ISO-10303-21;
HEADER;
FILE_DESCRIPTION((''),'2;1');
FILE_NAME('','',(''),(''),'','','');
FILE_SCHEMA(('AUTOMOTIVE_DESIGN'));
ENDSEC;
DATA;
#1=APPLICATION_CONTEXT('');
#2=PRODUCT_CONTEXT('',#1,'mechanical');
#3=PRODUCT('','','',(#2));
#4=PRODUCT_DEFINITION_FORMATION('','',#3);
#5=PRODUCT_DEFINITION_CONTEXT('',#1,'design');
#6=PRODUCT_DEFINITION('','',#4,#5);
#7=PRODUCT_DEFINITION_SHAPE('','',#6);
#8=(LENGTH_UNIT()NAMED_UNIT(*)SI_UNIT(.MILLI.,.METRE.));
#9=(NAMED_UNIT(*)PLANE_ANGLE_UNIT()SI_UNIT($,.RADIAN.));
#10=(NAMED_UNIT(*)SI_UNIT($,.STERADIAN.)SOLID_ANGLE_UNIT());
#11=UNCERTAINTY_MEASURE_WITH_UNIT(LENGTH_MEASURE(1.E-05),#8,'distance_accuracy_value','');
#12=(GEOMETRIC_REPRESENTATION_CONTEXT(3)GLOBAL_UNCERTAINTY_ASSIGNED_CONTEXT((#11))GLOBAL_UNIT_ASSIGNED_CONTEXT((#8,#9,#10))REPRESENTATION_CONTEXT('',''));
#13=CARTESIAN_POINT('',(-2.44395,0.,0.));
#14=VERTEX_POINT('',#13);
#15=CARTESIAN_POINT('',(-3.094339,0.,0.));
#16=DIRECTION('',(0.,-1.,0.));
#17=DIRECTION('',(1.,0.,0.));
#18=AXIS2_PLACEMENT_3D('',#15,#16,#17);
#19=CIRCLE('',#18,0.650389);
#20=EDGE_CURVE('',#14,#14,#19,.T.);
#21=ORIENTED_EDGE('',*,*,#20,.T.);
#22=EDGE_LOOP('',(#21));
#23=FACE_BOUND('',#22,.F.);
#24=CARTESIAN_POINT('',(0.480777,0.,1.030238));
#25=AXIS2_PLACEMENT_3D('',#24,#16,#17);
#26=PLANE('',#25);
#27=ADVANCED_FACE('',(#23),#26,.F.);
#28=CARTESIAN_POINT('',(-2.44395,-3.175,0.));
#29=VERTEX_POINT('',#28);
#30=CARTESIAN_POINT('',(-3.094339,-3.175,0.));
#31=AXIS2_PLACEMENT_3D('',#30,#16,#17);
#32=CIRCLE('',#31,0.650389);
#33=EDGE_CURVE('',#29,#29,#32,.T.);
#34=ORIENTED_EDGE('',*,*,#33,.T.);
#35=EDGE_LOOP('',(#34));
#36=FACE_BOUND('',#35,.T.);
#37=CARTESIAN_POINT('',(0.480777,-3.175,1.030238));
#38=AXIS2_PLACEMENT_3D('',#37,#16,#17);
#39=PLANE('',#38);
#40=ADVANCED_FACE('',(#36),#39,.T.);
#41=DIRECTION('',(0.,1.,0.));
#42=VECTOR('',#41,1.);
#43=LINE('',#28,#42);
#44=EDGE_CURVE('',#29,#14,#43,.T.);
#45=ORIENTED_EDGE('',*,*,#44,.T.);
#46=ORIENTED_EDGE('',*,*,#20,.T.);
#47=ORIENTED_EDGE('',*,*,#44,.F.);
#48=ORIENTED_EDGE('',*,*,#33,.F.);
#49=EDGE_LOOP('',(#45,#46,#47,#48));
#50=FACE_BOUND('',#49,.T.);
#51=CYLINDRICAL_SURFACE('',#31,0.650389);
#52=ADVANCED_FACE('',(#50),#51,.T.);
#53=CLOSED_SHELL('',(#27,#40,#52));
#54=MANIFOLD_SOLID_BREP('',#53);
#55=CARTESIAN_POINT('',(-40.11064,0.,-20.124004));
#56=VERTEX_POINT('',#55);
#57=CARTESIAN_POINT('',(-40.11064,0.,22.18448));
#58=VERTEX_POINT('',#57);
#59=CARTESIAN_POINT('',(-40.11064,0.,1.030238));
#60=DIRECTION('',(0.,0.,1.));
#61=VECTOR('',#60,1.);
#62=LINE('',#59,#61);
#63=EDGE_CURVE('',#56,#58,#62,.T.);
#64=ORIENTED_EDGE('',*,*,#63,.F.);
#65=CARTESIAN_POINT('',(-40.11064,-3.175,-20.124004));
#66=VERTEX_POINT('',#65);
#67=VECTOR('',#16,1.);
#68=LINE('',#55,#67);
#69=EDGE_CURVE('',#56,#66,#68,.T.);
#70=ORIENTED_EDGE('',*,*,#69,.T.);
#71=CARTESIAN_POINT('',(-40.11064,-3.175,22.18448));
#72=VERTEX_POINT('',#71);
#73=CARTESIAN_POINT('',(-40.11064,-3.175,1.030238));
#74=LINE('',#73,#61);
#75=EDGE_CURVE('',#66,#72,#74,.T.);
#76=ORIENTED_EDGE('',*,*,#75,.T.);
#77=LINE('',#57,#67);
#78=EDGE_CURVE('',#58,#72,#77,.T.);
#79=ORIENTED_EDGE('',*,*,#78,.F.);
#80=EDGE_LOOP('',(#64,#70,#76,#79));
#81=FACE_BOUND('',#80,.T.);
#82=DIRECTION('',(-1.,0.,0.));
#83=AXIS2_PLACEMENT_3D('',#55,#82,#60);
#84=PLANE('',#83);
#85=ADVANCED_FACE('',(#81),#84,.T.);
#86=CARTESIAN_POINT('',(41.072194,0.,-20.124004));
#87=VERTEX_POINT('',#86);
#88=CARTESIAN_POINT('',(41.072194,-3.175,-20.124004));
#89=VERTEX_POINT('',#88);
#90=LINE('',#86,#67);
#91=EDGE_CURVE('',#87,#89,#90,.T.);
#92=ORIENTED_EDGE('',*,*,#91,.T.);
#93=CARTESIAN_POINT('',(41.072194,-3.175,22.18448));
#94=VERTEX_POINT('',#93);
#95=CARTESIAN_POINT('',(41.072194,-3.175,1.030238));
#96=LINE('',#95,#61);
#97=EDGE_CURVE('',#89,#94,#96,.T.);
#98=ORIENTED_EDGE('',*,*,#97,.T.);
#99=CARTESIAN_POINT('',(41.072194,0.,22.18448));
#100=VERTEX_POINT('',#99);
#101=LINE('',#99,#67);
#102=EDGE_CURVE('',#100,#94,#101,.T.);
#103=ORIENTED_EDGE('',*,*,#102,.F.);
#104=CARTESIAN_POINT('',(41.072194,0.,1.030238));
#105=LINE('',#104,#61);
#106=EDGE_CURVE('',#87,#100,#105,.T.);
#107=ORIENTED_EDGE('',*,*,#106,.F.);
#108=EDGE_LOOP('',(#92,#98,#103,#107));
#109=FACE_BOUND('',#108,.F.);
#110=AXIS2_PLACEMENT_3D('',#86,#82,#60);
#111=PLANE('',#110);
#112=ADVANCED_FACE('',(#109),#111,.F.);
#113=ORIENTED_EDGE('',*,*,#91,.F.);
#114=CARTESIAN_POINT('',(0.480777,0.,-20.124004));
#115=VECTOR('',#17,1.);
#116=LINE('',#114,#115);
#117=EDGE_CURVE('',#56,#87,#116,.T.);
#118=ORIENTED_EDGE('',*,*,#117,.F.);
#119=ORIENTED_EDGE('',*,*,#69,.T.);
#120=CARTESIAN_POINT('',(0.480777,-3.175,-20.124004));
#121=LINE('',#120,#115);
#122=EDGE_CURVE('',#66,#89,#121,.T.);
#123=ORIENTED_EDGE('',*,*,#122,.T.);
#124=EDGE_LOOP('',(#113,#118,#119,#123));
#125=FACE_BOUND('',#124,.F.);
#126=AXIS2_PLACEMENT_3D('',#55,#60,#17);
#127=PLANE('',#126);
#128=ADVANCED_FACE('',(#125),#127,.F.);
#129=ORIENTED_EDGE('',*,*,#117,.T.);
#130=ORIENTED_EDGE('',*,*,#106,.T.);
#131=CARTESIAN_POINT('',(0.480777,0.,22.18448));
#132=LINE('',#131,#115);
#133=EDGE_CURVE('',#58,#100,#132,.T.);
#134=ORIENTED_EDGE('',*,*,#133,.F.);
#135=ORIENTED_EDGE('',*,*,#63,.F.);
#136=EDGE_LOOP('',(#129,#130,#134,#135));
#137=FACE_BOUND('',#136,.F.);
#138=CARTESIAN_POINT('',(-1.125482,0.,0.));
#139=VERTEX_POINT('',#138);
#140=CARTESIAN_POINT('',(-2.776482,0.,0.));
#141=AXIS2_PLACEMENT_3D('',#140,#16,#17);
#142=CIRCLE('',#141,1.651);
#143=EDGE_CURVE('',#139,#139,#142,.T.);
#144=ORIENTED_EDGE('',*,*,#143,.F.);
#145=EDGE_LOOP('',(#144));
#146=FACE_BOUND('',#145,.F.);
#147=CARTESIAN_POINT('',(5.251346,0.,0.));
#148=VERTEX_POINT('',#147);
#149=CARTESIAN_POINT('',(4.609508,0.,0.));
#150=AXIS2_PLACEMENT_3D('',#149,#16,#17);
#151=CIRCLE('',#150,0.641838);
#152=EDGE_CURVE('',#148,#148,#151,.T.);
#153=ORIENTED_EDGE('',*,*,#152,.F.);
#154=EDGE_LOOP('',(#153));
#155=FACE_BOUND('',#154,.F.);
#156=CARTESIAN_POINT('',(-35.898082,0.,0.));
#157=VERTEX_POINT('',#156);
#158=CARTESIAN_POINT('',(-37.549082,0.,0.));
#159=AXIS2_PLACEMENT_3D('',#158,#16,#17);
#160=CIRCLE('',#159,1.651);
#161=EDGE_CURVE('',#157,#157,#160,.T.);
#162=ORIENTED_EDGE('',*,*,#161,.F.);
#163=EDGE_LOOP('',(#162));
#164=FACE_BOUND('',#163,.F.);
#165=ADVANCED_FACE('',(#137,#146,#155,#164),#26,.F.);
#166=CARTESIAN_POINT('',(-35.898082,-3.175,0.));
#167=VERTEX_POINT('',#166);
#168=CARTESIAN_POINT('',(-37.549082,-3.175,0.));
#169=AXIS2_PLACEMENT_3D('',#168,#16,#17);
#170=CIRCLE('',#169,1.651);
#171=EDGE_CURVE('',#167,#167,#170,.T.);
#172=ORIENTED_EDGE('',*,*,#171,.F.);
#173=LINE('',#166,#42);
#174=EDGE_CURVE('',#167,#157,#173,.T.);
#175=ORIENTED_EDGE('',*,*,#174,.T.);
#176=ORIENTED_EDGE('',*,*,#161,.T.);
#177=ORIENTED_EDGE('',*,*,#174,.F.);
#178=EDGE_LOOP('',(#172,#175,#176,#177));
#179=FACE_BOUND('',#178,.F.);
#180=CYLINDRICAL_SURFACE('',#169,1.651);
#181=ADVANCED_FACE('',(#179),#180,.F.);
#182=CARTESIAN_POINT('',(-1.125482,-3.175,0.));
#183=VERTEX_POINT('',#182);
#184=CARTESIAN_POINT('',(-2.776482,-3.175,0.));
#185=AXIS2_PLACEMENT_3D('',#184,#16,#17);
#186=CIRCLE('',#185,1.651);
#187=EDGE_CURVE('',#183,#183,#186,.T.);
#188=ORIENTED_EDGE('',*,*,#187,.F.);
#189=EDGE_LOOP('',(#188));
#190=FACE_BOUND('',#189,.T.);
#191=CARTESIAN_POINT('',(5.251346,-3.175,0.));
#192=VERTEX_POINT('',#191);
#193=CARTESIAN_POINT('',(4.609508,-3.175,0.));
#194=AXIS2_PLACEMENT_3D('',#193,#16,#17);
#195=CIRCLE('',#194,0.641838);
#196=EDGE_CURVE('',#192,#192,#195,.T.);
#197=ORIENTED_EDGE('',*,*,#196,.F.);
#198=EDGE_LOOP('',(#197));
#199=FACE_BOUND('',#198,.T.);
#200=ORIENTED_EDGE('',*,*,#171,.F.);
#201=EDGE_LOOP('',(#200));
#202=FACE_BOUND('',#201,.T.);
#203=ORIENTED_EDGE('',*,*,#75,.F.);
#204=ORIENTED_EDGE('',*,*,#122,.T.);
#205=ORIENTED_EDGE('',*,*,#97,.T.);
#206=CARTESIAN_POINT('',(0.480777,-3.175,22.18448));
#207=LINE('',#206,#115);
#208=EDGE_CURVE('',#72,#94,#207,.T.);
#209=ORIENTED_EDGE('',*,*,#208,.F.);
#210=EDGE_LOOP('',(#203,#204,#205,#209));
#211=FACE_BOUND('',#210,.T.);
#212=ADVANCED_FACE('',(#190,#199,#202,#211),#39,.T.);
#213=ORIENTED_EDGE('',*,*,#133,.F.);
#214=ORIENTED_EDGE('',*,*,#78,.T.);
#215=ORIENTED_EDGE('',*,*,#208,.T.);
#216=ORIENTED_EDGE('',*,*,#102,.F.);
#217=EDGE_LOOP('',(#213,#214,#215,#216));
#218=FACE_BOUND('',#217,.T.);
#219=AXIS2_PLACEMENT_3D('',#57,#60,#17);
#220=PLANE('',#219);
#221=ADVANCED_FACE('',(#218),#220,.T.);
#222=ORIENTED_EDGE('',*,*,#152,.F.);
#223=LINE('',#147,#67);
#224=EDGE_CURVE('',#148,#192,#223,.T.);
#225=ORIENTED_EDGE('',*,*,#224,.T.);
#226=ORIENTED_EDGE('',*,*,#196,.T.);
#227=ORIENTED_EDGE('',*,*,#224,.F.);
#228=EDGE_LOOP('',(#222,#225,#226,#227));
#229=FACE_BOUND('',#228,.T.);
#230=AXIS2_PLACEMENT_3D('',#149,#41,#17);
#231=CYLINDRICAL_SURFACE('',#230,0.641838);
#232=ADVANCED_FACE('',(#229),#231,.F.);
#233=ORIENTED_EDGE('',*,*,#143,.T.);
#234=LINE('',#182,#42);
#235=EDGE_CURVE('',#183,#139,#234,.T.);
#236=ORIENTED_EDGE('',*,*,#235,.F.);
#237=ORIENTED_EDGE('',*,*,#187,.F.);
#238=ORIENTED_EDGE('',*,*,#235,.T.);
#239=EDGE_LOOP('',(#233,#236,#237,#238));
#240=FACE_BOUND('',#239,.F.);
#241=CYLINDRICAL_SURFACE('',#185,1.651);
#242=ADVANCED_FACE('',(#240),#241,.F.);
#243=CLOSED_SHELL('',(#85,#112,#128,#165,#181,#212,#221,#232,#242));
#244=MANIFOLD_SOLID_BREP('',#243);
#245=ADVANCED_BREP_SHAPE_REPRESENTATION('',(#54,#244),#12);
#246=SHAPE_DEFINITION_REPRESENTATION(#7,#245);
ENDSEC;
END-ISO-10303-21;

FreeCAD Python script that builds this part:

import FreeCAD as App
import Part
import Sketcher
from FreeCAD import Vector
Q = App.Units.Quantity


def add_polygon(sketch, points):
    """Adds a closed chain of lines whose ends are joined by coincident constraints."""
    first, n = sketch.GeometryCount, len(points)
    for a, b in zip(points, points[1:] + points[:1]):
        sketch.addGeometry(Part.LineSegment(App.Vector(*a, 0), App.Vector(*b, 0)), False)
    for i in range(n):
        sketch.addConstraint(Sketcher.Constraint("Coincident", first + i, 2, first + (i + 1) % n, 1))

doc = App.newDocument("Part")
body = doc.addObject("PartDesign::Body", "Body")
body.AllowCompound = True

# Sketch on XZ plane
sketch1 = body.newObject("Sketcher::SketchObject", "Sketch")
sketch1.AttachmentSupport = (doc.getObject("XZ_Plane"), [""])
sketch1.MapMode = "FlatFace"
add_polygon(sketch1, [(-40.11064, 22.18448), (-40.11064, -20.124004), (41.072194, -20.124004), (41.072194, 22.18448)])  # lines 0-3
sketch1.addGeometry(Part.Circle(Vector(4.609508, 0, 0), Vector(0, 0, 1), 0.641838), False)  # 4
sketch1.addConstraint([
    Sketcher.Constraint("Vertical", 0),
    Sketcher.Constraint("Horizontal", 1),
    Sketcher.Constraint("Vertical", 2),
    Sketcher.Constraint("Horizontal", 3),
    Sketcher.Constraint("PointOnObject", 4, 3, -1),
    Sketcher.Constraint("Diameter", 4, 1.283676),
    Sketcher.Constraint("DistanceX", 1, 1, 1, 2, 81.182834),
    Sketcher.Constraint("DistanceY", 0, 2, 0, 1, 42.308484),
    Sketcher.Constraint("DistanceX", 0, 2, -1, 1, 40.11064),
    Sketcher.Constraint("DistanceY", -1, 1, 2, 2, 22.18448),
    Sketcher.Constraint("DistanceX", -1, 1, 4, 3, 4.609508),
])
pad1 = body.newObject("PartDesign::Pad", "Pad")
pad1.Profile = sketch1
pad1.Length = Q("0.125 in")

# Sketch on XZ plane
sketch2 = body.newObject("Sketcher::SketchObject", "Sketch001")
sketch2.AttachmentSupport = (doc.getObject("XZ_Plane"), [""])
sketch2.MapMode = "FlatFace"
sketch2.AttachmentOffset = App.Placement(Vector(0, 0, 0.125 * 25.4), App.Rotation())
sketch2.addGeometry([
    Part.Circle(Vector(-2.776482, 0, 0), Vector(0, 0, 1), 1.651),
    Part.Circle(Vector(-3.094339, 0, 0), Vector(0, 0, 1), 0.650389),
    Part.Circle(Vector(-37.549082, 0, 0), Vector(0, 0, 1), 1.651),
], False)
sketch2.addConstraint([
    Sketcher.Constraint("Equal", 0, 2),
    Sketcher.Constraint("PointOnObject", 0, 3, -1),
    Sketcher.Constraint("PointOnObject", 1, 3, -1),
    Sketcher.Constraint("PointOnObject", 2, 3, -1),
    Sketcher.Constraint("Diameter", 0, Q("0.13 in")),
    Sketcher.Constraint("DistanceX", 2, 3, 0, 3, Q("1.369 in")),
    Sketcher.Constraint("Diameter", 1, 1.300778),
    Sketcher.Constraint("DistanceX", 1, 3, -1, 1, 3.094339),
    Sketcher.Constraint("DistanceX", 0, 3, -1, 1, 2.776482),
])
pocket1 = body.newObject("PartDesign::Pocket", "Pocket")
pocket1.Profile = sketch2
pocket1.Length = Q("0.5 in")

# Sketch on XZ plane
sketch3 = body.newObject("Sketcher::SketchObject", "Sketch002")
sketch3.AttachmentSupport = (doc.getObject("XZ_Plane"), [""])
sketch3.MapMode = "FlatFace"
add_polygon(sketch3, [(-40.11064, 22.18448), (-40.11064, -20.124004), (41.072194, -20.124004), (41.072194, 22.18448)])  # lines 0-3
sketch3.addGeometry(Part.Circle(Vector(4.609508, 0, 0), Vector(0, 0, 1), 0.641838), False)  # 4
sketch3.addConstraint([
    Sketcher.Constraint("Vertical", 0),
    Sketcher.Constraint("Horizontal", 1),
    Sketcher.Constraint("Vertical", 2),
    Sketcher.Constraint("Horizontal", 3),
    Sketcher.Constraint("PointOnObject", 4, 3, -1),
    Sketcher.Constraint("Diameter", 4, 1.283676),
    Sketcher.Constraint("DistanceX", 1, 1, 1, 2, 81.182834),
    Sketcher.Constraint("DistanceY", 0, 2, 0, 1, 42.308484),
    Sketcher.Constraint("DistanceX", 0, 2, -1, 1, 40.11064),
    Sketcher.Constraint("DistanceY", -1, 1, 2, 2, 22.18448),
    Sketcher.Constraint("DistanceX", -1, 1, 4, 3, 4.609508),
])
pocket2 = body.newObject("PartDesign::Pocket", "Pocket001")
pocket2.Profile = sketch3
pocket2.Length = Q("1 in")

doc.recompute()
